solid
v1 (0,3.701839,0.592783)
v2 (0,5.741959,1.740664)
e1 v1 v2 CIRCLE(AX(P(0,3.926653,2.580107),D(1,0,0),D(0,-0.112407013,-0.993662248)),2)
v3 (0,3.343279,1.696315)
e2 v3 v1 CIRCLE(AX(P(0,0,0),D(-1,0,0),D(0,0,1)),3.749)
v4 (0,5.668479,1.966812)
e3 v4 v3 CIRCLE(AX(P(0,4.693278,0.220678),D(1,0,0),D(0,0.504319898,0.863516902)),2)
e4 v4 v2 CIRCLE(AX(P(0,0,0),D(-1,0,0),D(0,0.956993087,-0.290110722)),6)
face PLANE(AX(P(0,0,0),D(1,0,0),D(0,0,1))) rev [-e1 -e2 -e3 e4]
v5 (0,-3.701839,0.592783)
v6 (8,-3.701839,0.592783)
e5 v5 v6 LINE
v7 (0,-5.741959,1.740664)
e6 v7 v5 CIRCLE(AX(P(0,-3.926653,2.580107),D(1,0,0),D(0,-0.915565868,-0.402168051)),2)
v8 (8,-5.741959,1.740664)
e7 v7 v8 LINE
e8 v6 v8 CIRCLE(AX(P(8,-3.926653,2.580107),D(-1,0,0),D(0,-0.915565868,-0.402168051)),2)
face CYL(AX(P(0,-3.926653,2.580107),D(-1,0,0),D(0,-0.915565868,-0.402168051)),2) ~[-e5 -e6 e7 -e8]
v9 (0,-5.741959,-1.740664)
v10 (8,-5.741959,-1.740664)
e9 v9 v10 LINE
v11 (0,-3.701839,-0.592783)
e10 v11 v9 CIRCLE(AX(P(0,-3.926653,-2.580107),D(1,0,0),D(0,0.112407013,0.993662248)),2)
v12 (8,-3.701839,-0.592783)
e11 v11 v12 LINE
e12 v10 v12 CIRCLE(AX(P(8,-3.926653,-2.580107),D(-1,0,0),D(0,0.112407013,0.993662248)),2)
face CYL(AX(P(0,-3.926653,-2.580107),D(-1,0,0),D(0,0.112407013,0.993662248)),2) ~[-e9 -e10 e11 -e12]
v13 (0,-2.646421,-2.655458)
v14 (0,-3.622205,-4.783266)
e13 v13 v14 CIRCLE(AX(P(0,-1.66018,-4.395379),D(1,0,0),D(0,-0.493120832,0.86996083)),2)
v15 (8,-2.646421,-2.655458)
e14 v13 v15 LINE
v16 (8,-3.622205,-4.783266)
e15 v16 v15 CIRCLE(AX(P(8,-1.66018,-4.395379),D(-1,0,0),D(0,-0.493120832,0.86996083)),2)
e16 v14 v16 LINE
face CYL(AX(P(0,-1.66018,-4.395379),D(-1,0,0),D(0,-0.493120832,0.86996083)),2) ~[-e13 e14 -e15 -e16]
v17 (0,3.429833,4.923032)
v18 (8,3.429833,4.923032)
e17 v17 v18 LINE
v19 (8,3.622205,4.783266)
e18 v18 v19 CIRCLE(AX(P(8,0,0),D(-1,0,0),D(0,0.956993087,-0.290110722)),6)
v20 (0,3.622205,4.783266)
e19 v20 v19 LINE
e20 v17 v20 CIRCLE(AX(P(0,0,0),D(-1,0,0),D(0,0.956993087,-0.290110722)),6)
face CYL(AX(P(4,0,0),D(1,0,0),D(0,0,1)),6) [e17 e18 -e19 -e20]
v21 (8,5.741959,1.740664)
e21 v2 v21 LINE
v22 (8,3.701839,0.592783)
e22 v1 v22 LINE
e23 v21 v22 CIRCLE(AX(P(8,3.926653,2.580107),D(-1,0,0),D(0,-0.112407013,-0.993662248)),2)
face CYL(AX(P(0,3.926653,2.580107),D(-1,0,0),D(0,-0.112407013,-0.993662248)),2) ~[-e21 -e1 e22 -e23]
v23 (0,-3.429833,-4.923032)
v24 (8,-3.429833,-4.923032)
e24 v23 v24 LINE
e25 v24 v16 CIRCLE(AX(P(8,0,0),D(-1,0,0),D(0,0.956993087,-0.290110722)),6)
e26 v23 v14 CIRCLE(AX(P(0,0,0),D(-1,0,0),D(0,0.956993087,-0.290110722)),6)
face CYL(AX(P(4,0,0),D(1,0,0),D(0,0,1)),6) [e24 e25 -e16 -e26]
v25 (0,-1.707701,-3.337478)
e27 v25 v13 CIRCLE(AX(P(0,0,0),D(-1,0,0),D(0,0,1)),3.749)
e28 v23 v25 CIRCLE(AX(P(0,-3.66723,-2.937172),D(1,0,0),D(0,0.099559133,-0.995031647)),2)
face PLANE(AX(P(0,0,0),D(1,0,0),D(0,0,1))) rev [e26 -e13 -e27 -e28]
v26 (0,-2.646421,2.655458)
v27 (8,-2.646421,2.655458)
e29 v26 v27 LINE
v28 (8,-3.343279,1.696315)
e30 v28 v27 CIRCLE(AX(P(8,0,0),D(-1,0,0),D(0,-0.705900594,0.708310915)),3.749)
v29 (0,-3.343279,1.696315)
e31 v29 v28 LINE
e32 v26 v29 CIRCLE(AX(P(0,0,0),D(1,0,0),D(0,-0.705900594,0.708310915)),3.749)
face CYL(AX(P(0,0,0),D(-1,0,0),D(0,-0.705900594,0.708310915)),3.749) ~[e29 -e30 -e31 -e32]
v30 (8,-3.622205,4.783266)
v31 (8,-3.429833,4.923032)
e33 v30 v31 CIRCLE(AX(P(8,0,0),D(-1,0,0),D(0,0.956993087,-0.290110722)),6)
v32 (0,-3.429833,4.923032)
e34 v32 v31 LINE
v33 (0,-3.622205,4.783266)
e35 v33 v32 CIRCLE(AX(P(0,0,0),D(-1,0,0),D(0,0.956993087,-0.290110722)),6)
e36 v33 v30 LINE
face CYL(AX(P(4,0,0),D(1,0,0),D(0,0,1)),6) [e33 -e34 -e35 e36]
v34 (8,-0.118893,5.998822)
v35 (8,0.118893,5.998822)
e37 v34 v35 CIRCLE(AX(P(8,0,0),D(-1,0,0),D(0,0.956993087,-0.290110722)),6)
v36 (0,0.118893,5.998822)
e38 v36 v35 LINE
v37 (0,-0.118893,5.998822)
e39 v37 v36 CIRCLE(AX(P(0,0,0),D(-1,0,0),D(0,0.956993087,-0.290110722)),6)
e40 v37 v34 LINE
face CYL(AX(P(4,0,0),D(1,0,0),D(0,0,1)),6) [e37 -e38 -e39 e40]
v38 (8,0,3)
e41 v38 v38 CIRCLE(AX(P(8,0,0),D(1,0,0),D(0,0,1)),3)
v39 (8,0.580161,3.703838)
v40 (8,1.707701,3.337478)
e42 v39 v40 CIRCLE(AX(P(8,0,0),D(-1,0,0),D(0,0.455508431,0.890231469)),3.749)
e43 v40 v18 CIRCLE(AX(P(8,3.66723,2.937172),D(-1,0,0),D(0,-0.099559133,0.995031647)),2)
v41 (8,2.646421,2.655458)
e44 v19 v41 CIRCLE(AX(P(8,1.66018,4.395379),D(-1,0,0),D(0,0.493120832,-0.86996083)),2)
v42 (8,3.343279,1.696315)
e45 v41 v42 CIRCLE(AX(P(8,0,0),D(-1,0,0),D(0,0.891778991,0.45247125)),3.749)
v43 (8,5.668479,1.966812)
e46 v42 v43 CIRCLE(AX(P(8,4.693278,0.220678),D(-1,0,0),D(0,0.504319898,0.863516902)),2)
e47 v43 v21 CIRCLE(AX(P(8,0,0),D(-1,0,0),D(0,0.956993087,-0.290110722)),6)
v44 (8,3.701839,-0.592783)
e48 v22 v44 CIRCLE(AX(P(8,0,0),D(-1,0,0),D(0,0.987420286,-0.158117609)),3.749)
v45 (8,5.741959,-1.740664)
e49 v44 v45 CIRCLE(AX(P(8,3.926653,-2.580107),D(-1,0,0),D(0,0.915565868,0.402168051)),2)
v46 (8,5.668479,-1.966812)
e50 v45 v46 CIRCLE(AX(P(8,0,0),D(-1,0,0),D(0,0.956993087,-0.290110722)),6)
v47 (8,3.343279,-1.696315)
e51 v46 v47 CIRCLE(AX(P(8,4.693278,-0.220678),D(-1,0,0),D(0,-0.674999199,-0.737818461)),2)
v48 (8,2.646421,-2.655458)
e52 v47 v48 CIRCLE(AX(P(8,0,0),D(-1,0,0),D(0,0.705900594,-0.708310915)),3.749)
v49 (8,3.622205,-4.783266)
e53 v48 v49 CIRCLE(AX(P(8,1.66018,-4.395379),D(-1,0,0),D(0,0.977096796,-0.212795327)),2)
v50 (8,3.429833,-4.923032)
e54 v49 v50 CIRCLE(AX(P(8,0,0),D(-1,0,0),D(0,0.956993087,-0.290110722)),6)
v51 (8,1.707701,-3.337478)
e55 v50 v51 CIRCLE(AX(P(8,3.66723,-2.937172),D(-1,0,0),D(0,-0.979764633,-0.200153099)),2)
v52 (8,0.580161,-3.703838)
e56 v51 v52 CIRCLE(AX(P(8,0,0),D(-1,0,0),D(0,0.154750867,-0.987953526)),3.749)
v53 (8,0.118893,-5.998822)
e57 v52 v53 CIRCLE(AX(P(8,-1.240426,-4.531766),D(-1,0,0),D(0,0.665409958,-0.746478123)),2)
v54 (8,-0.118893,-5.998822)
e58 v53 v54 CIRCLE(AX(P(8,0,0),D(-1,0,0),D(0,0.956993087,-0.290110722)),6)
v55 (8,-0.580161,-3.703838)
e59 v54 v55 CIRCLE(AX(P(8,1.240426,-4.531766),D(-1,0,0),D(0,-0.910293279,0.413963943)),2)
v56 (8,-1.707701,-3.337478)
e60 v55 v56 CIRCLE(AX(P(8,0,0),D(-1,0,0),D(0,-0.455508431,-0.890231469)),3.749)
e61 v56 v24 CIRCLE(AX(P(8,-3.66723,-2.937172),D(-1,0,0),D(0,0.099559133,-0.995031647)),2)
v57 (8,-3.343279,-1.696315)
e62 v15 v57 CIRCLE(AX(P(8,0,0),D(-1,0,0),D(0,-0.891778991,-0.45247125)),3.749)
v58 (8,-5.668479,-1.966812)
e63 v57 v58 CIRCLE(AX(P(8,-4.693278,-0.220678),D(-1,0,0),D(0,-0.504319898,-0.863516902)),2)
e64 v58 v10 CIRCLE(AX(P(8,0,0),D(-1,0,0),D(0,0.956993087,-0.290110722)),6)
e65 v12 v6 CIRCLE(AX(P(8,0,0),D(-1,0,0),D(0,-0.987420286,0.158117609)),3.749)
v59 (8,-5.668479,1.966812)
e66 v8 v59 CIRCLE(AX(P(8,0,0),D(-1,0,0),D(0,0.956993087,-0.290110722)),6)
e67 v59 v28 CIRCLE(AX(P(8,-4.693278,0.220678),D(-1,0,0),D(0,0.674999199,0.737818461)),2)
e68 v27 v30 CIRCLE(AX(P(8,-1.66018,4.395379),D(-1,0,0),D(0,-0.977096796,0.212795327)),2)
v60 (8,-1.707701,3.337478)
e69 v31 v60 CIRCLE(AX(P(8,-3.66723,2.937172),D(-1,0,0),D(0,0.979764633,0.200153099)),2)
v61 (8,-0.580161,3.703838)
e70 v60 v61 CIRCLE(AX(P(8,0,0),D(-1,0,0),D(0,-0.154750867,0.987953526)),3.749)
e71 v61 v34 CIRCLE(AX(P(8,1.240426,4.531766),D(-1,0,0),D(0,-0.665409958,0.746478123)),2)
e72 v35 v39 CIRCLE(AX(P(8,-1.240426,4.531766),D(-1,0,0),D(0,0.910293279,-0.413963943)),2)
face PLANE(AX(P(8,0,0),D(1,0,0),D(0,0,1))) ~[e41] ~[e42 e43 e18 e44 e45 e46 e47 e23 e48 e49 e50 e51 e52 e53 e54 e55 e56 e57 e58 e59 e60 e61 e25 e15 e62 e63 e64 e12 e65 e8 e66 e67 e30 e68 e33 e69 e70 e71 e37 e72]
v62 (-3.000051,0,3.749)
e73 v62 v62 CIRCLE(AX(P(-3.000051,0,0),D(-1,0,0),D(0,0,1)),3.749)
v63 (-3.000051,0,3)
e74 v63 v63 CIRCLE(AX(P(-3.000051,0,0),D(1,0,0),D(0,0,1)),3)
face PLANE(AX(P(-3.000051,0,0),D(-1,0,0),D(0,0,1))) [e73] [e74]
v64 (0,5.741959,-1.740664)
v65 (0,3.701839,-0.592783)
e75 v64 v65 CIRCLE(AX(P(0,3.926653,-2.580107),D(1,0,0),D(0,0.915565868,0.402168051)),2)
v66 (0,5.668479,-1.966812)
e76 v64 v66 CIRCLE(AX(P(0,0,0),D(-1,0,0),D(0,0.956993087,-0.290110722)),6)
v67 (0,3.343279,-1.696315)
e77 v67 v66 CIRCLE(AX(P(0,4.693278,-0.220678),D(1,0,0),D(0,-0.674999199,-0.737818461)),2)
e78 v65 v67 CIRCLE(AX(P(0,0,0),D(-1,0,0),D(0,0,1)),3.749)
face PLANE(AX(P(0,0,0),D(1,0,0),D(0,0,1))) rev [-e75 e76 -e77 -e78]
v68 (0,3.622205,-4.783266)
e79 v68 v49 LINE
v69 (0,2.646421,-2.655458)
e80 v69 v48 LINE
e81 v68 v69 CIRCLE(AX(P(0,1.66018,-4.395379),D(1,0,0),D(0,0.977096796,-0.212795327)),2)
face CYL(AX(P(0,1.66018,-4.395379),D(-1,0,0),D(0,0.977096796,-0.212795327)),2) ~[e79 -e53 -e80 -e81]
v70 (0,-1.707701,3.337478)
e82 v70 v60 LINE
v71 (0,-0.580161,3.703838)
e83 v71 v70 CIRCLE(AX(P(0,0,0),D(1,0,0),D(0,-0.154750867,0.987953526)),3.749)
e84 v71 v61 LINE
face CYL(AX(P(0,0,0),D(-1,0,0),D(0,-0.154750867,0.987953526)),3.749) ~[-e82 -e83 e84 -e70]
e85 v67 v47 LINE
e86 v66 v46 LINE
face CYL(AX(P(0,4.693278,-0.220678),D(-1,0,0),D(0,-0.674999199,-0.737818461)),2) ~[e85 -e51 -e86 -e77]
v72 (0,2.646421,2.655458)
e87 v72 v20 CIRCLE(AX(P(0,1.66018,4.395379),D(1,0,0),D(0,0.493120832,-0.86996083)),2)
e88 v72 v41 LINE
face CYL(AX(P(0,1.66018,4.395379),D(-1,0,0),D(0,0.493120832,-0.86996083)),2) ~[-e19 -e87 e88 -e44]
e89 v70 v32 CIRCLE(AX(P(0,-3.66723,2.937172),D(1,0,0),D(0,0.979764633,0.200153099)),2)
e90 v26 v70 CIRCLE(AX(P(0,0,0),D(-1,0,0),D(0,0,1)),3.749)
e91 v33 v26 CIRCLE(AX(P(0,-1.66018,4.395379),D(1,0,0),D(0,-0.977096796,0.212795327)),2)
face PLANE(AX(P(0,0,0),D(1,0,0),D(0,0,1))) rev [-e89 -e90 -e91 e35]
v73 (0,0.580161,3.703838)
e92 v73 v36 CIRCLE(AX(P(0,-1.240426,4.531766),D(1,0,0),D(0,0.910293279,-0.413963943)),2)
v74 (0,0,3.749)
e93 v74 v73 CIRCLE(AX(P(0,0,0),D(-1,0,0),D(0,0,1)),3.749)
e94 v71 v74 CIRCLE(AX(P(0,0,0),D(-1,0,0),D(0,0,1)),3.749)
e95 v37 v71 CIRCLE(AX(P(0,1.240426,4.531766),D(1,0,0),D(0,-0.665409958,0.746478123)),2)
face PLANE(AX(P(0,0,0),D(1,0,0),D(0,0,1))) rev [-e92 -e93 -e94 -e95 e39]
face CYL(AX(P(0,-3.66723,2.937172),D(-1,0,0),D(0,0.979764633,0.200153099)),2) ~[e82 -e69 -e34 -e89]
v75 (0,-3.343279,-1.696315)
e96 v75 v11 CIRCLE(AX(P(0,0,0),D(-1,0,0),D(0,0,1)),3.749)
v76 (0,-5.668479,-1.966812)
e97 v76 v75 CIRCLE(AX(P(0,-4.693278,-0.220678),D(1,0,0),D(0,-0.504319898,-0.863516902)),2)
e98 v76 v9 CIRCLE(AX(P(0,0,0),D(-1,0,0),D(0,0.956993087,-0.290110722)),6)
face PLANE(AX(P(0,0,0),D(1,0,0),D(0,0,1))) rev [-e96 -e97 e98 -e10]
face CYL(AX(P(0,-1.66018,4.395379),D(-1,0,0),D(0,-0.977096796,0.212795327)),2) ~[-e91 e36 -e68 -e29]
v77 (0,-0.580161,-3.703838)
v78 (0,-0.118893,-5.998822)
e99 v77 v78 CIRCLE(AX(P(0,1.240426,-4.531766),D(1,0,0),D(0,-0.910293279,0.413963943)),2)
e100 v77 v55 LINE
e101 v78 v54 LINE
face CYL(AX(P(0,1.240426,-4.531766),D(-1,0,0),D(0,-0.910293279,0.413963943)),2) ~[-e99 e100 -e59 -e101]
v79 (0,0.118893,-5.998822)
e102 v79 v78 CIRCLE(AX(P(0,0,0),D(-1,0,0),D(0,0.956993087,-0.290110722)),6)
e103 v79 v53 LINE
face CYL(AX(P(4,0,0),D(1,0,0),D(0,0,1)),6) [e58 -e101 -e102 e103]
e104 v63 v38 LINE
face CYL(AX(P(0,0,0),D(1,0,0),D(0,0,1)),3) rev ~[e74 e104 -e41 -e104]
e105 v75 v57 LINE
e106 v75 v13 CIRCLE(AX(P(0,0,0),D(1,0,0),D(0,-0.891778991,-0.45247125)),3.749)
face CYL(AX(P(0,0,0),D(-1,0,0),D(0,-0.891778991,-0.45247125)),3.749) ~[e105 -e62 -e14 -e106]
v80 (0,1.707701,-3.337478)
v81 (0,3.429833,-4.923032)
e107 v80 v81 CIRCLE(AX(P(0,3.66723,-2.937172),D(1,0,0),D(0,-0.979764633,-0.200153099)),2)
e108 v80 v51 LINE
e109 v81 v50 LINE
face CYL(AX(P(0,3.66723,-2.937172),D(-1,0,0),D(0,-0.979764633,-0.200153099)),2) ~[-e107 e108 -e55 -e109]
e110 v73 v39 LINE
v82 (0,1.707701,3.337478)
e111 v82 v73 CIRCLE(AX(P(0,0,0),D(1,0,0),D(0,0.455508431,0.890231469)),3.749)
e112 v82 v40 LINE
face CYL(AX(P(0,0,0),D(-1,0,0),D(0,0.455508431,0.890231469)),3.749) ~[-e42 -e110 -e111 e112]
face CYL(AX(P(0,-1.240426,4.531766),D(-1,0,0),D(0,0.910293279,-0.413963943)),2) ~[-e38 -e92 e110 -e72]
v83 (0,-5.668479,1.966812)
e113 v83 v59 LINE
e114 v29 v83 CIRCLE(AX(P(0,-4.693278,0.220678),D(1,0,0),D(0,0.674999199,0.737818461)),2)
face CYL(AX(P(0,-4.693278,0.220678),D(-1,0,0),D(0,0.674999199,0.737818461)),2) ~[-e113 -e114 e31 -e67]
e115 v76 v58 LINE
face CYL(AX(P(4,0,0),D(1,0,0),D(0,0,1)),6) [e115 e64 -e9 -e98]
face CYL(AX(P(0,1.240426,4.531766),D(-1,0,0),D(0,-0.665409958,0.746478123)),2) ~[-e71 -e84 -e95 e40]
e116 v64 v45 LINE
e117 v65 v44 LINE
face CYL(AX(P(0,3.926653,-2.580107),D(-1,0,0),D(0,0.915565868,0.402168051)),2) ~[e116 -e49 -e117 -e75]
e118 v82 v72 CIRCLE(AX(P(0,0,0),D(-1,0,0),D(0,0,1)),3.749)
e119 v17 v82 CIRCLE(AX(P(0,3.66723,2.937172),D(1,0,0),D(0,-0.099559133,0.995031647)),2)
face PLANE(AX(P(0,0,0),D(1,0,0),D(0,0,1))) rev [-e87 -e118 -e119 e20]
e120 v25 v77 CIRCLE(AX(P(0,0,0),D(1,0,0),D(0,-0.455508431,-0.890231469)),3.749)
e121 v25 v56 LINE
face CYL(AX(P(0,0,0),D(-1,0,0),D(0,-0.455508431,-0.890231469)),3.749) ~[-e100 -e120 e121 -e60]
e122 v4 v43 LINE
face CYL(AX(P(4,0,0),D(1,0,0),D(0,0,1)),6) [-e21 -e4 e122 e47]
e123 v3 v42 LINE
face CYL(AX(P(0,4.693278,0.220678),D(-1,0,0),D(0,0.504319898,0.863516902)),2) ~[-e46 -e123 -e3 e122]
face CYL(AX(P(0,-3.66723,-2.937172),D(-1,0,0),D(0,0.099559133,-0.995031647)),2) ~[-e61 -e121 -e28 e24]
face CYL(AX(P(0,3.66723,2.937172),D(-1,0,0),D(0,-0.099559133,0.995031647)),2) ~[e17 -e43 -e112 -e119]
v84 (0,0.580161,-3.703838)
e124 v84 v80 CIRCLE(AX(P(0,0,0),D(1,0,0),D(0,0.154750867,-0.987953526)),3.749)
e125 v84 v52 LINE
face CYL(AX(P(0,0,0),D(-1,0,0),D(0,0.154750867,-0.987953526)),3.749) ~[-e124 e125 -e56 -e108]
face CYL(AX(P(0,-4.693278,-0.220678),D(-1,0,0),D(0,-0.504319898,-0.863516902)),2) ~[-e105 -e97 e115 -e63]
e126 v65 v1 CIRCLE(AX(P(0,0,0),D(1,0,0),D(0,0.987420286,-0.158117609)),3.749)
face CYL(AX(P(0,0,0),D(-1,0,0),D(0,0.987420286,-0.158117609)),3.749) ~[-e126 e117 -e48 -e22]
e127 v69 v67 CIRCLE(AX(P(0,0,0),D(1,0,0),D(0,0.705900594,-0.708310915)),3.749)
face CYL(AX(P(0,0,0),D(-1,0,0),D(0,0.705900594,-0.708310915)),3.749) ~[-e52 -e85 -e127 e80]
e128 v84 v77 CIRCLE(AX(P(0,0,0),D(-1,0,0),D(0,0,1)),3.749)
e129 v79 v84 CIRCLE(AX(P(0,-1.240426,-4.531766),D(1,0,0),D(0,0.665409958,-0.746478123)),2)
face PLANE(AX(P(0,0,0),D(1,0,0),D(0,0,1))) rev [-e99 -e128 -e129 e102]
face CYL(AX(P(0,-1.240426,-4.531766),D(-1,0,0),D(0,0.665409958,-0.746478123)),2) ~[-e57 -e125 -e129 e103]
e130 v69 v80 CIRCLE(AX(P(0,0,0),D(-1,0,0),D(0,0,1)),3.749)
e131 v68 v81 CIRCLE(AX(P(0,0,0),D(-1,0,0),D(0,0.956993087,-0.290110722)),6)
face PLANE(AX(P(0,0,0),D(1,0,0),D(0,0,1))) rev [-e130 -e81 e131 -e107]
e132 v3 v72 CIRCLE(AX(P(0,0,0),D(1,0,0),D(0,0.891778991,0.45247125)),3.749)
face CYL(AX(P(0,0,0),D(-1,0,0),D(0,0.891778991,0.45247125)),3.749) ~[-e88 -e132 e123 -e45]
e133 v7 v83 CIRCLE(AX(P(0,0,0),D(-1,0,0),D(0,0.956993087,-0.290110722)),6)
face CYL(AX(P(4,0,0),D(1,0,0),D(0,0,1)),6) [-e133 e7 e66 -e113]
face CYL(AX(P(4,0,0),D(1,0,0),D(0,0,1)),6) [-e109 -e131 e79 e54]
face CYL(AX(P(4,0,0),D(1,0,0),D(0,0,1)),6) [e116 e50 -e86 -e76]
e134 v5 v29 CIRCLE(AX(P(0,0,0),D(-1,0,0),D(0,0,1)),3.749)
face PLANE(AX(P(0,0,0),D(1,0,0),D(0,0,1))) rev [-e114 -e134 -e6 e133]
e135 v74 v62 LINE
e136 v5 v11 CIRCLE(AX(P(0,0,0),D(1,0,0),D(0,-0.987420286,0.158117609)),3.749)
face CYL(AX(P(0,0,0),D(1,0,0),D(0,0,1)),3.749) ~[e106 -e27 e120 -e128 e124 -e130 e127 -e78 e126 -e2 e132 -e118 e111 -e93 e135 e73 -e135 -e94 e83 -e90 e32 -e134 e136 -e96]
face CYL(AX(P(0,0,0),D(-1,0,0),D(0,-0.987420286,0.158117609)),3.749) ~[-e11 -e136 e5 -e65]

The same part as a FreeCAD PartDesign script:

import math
import FreeCAD as App
import Part
import Sketcher
from FreeCAD import Vector


def add_polygon(sketch, points):
    """Adds a closed chain of lines whose ends are joined by coincident constraints."""
    first, n = sketch.GeometryCount, len(points)
    for a, b in zip(points, points[1:] + points[:1]):
        sketch.addGeometry(Part.LineSegment(App.Vector(*a, 0), App.Vector(*b, 0)), False)
    for i in range(n):
        sketch.addConstraint(Sketcher.Constraint("Coincident", first + i, 2, first + (i + 1) % n, 1))

doc = App.newDocument("Part")
params = doc.addObject("Spreadsheet::Sheet", "Params")
for row, (alias, value) in enumerate([
    ("sketch1_width", "8 mm"),
    ("sketch1_height", "6 mm"),
    ("revolution_angle", "360 deg"),
    ("sketch2_radius", "2 mm"),
    ("pad1_length", "3.000051 mm"),
    ("sketch4_diameter", "6 mm"),
    ("pocket2_length", "22.000102 mm"),
], start=1):
    params.set(f"A{row}", alias)
    params.set(f"B{row}", "=" + value)
    params.setAlias(f"B{row}", alias)

body = doc.addObject("PartDesign::Body", "Body")

# Sketch on XZ plane
sketch1 = doc.addObject("Sketcher::SketchObject", "Sketch")
body.addObject(sketch1)
sketch1.AttachmentSupport = (doc.XZ_Plane, [""])
sketch1.MapMode = "FlatFace"
add_polygon(sketch1, [(0, -6), (0, 0), (8, 0), (8, -6)])  # lines 0-3
sketch1.addConstraint(Sketcher.Constraint("Vertical", 0))
sketch1.addConstraint(Sketcher.Constraint("Horizontal", 1))
sketch1.addConstraint(Sketcher.Constraint("Vertical", 2))
sketch1.addConstraint(Sketcher.Constraint("Horizontal", 3))
sketch1.addConstraint(Sketcher.Constraint("Coincident", 0, 2, -1, 1))
sketch1.addConstraint(Sketcher.Constraint("DistanceX", 1, 1, 1, 2, 8.0))
sketch1.addConstraint(Sketcher.Constraint("DistanceY", 0, 1, 0, 2, 6.0))
sketch1.setExpression("Constraints[9]", "Params.sketch1_width")
sketch1.setExpression("Constraints[10]", "Params.sketch1_height")
revolution = doc.addObject("PartDesign::Revolution", "Revolution")
body.addObject(revolution)
revolution.Profile = sketch1
revolution.ReferenceAxis = (sketch1, ["H_Axis"])
revolution.setExpression("Angle", "Params.revolution_angle")

# Sketch on YZ plane
sketch2 = doc.addObject("Sketcher::SketchObject", "Sketch001")
body.addObject(sketch2)
sketch2.AttachmentSupport = (doc.YZ_Plane, [""])
sketch2.MapMode = "FlatFace"
sketch2.addGeometry(Part.ArcOfCircle(Part.Circle(Vector(0, 0, 0), Vector(0, 0, 1), 3.749), math.radians(-9.097652), math.radians(9.097652)), False)
sketch2.addGeometry(Part.ArcOfCircle(Part.Circle(Vector(3.926653, -2.580107, 0), Vector(0, 0, 1), 2), math.radians(23.713784), math.radians(96.454088)), False)
sketch2.addGeometry(Part.ArcOfCircle(Part.Circle(Vector(0, 0, 0), Vector(0, 0, 1), 6.0254), math.radians(-17.140404), math.radians(17.140404)), False)
sketch2.addGeometry(Part.ArcOfCircle(Part.Circle(Vector(3.926653, 2.580107, 0), Vector(0, 0, 1), 2), math.radians(-96.454088), math.radians(-23.713784)), False)
sketch2.addConstraint(Sketcher.Constraint("Coincident", 0, 1, 1, 2))
sketch2.addConstraint(Sketcher.Constraint("Coincident", 1, 1, 2, 1))
sketch2.addConstraint(Sketcher.Constraint("Coincident", 2, 2, 3, 2))
sketch2.addConstraint(Sketcher.Constraint("Coincident", 3, 1, 0, 2))
sketch2.addConstraint(Sketcher.Constraint("Coincident", 0, 3, -1, 1))
sketch2.addConstraint(Sketcher.Constraint("Coincident", 2, 3, -1, 1))
sketch2.addConstraint(Sketcher.Constraint("Equal", 1, 3))
sketch2.addConstraint(Sketcher.Constraint("Symmetric", 1, 3, 3, 3, -1))
sketch2.addConstraint(Sketcher.Constraint("Radius", 1, 2.0))
sketch2.addConstraint(Sketcher.Constraint("Radius", 0, 3.749))
sketch2.addConstraint(Sketcher.Constraint("Radius", 2, 6.0254))
sketch2.addConstraint(Sketcher.Constraint("DistanceX", -1, 1, 0, 1, 3.701839))
sketch2.addConstraint(Sketcher.Constraint("DistanceY", 1, 1, -1, 1, 1.775771))
sketch2.setExpression("Constraints[8]", "Params.sketch2_radius")
pocket1 = doc.addObject("PartDesign::Pocket", "Pocket")
body.addObject(pocket1)
pocket1.Profile = sketch2
pocket1.Type = "ThroughAll"
pocket1.Reversed = True
doc.recompute()

polarpattern = doc.addObject("PartDesign::PolarPattern", "PolarPattern")
body.addObject(polarpattern)
polarpattern.Originals = [pocket1]
polarpattern.Axis = (doc.X_Axis, [""])
polarpattern.Angle = 360
polarpattern.Occurrences = 10
body.Tip = polarpattern

# Sketch on YZ plane
sketch3 = doc.addObject("Sketcher::SketchObject", "Sketch002")
body.addObject(sketch3)
sketch3.AttachmentSupport = (doc.YZ_Plane, [""])
sketch3.MapMode = "FlatFace"
sketch3.addGeometry(Part.Circle(Vector(0, 0, 0), Vector(0, 0, 1), 3.749), False)
sketch3.addConstraint(Sketcher.Constraint("Coincident", 0, 3, -1, 1))
sketch3.addConstraint(Sketcher.Constraint("Diameter", 0, 7.498))
pad1 = doc.addObject("PartDesign::Pad", "Pad")
body.addObject(pad1)
pad1.Profile = sketch3
pad1.setExpression("Length", "Params.pad1_length")
pad1.Reversed = True

# Sketch on YZ plane
sketch4 = doc.addObject("Sketcher::SketchObject", "Sketch003")
body.addObject(sketch4)
sketch4.AttachmentSupport = (doc.YZ_Plane, [""])
sketch4.MapMode = "FlatFace"
sketch4.addGeometry(Part.Circle(Vector(0, 0, 0), Vector(0, 0, 1), 3), False)
sketch4.addConstraint(Sketcher.Constraint("Coincident", 0, 3, -1, 1))
sketch4.addConstraint(Sketcher.Constraint("Diameter", 0, 6.0))
sketch4.setExpression("Constraints[1]", "Params.sketch4_diameter")
pocket2 = doc.addObject("PartDesign::Pocket", "Pocket001")
body.addObject(pocket2)
pocket2.Profile = sketch4
pocket2.setExpression("Length", "Params.pocket2_length")
pocket2.Midplane = True

doc.recompute()
